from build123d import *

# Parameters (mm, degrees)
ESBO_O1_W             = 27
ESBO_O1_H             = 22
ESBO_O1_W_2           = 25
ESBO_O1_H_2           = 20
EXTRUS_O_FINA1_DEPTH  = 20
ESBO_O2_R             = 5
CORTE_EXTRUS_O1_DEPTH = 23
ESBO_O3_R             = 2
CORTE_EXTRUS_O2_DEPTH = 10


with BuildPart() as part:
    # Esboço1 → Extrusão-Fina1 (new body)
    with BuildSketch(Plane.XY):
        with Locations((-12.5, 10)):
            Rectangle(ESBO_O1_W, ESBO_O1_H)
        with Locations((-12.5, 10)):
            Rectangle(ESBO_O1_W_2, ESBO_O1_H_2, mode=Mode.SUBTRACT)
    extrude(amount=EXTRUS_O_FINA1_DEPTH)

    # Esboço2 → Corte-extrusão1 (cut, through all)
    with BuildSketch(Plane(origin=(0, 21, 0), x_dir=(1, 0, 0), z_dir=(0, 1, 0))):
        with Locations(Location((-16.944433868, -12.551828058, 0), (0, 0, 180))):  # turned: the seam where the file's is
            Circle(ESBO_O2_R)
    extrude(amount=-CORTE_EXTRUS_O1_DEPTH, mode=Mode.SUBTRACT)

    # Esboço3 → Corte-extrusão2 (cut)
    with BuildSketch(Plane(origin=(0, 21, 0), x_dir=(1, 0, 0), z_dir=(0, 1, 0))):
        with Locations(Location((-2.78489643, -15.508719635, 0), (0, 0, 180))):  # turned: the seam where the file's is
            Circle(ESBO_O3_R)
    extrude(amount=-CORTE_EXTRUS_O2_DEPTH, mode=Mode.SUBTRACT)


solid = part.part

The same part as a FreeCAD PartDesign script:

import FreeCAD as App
import Part
import Sketcher
from FreeCAD import Vector
Q = App.Units.Quantity

doc = App.newDocument("Part")
body = doc.addObject("PartDesign::Body", "Body")

sketch1 = body.newObject("Sketcher::SketchObject", "Sketch")
sketch1.AttachmentSupport = (doc.getObject("XY_Plane"), [""])
sketch1.MapMode = "FlatFace"
sketch1.addGeometry([
    Part.LineSegment(Vector(-26, 21, 0), Vector(-26, -1, 0)),
    Part.LineSegment(Vector(-26, -1, 0), Vector(1, -1, 0)),
    Part.LineSegment(Vector(1, -1, 0), Vector(1, 21, 0)),
    Part.LineSegment(Vector(1, 21, 0), Vector(-26, 21, 0)),
    Part.LineSegment(Vector(0, 0, 0), Vector(-25, 0, 0)),
    Part.LineSegment(Vector(-25, 0, 0), Vector(-25, 20, 0)),
    Part.LineSegment(Vector(-25, 20, 0), Vector(0, 20, 0)),
    Part.LineSegment(Vector(0, 20, 0), Vector(0, 0, 0)),
], False)
sketch1.addConstraint([
    Sketcher.Constraint("Coincident", 0, 2, 1, 1),
    Sketcher.Constraint("Coincident", 1, 2, 2, 1),
    Sketcher.Constraint("Coincident", 2, 2, 3, 1),
    Sketcher.Constraint("Coincident", 3, 2, 0, 1),
    Sketcher.Constraint("Coincident", 4, 2, 5, 1),
    Sketcher.Constraint("Coincident", 5, 2, 6, 1),
    Sketcher.Constraint("Coincident", 6, 2, 7, 1),
    Sketcher.Constraint("Coincident", 7, 2, 4, 1),
    Sketcher.Constraint("Vertical", 0),
    Sketcher.Constraint("Horizontal", 1),
    Sketcher.Constraint("Vertical", 2),
    Sketcher.Constraint("Horizontal", 3),
    Sketcher.Constraint("Horizontal", 4),
    Sketcher.Constraint("Vertical", 5),
    Sketcher.Constraint("Horizontal", 6),
    Sketcher.Constraint("Vertical", 7),
    Sketcher.Constraint("Coincident", 7, 2, -1, 1),
    Sketcher.Constraint("DistanceX", 1, 1, 1, 2, Q("27 mm")),
    Sketcher.Constraint("DistanceX", 4, 2, 4, 1, Q("25 mm")),
    Sketcher.Constraint("DistanceY", 0, 2, 0, 1, Q("22 mm")),
    Sketcher.Constraint("DistanceY", 5, 1, 5, 2, Q("20 mm")),
    Sketcher.Constraint("DistanceX", 0, 2, -1, 1, Q("26 mm")),
    Sketcher.Constraint("DistanceY", 0, 2, -1, 1, Q("1 mm")),
])
pad1 = body.newObject("PartDesign::Pad", "Pad")
pad1.Profile = sketch1
pad1.Length = 20

sketch2 = body.newObject("Sketcher::SketchObject", "Sketch001")
sketch2.AttachmentSupport = (doc.getObject("XZ_Plane"), [""])
sketch2.MapMode = "FlatFace"
sketch2.AttachmentOffset = App.Placement(Vector(0, 0, -21), App.Rotation())
sketch2.addGeometry(Part.Circle(Vector(-17, 13, 0), Vector(0, 0, 1), 5), False)
sketch2.addConstraint([
    Sketcher.Constraint("Diameter", 0, Q("10 mm")),
    Sketcher.Constraint("DistanceY", -1, 1, 0, 3, Q("12.551828 mm")),
    Sketcher.Constraint("DistanceX", 0, 3, -1, 1, Q("16.944434 mm")),
])
pocket1 = body.newObject("PartDesign::Pocket", "Pocket")
pocket1.Profile = sketch2
pocket1.Type = "ThroughAll"
pocket1.Reversed = True

sketch3 = body.newObject("Sketcher::SketchObject", "Sketch002")
sketch3.AttachmentSupport = (doc.getObject("XZ_Plane"), [""])
sketch3.MapMode = "FlatFace"
sketch3.AttachmentOffset = App.Placement(Vector(0, 0, -21), App.Rotation())
sketch3.addGeometry(Part.Circle(Vector(-2.8, 15.5, 0), Vector(0, 0, 1), 2), False)
sketch3.addConstraint([
    Sketcher.Constraint("Diameter", 0, Q("4 mm")),
    Sketcher.Constraint("DistanceY", -1, 1, 0, 3, Q("15.50872 mm")),
    Sketcher.Constraint("DistanceX", 0, 3, -1, 1, Q("2.784896 mm")),
])
pocket2 = body.newObject("PartDesign::Pocket", "Pocket001")
pocket2.Profile = sketch3
pocket2.Length = 10
pocket2.Reversed = True

doc.recompute()
